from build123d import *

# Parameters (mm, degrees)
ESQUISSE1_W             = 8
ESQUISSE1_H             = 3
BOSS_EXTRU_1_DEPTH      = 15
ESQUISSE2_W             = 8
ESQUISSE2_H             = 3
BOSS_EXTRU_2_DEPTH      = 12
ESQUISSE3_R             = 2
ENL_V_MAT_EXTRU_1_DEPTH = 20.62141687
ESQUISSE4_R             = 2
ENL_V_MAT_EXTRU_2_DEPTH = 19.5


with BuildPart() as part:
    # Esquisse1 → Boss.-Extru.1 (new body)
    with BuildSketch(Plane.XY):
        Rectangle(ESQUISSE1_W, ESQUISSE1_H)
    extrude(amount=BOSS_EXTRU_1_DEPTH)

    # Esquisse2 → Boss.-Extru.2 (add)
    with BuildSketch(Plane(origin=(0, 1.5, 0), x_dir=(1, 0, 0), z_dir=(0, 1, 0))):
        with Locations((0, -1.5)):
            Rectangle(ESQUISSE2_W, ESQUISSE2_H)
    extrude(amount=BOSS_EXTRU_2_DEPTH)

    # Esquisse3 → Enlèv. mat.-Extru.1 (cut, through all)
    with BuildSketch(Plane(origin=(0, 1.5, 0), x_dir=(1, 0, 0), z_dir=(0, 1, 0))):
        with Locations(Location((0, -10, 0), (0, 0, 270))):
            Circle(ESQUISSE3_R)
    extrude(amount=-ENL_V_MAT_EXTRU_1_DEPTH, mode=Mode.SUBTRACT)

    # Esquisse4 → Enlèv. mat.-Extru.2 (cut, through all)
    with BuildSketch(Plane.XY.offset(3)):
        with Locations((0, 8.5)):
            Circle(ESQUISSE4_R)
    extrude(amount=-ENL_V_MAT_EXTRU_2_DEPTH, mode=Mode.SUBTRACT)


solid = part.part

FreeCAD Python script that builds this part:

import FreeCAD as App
import Part
import Sketcher
from FreeCAD import Vector
Q = App.Units.Quantity

doc = App.newDocument("Part")
body = doc.addObject("PartDesign::Body", "Body")

# Sketch on XY plane
sketch1 = body.newObject("Sketcher::SketchObject", "Sketch")
sketch1.AttachmentSupport = (doc.getObject("XY_Plane"), [""])
sketch1.MapMode = "FlatFace"
sketch1.addGeometry(Part.LineSegment(Vector(-4, 1.5, 0), Vector(-4, -1.5, 0)), False)
sketch1.addGeometry(Part.LineSegment(Vector(-4, -1.5, 0), Vector(4, -1.5, 0)), False)
sketch1.addGeometry(Part.LineSegment(Vector(4, -1.5, 0), Vector(4, 1.5, 0)), False)
sketch1.addGeometry(Part.LineSegment(Vector(4, 1.5, 0), Vector(-4, 1.5, 0)), False)
sketch1.addConstraint(Sketcher.Constraint("Coincident", 0, 2, 1, 1))
sketch1.addConstraint(Sketcher.Constraint("Coincident", 1, 2, 2, 1))
sketch1.addConstraint(Sketcher.Constraint("Coincident", 2, 2, 3, 1))
sketch1.addConstraint(Sketcher.Constraint("Coincident", 3, 2, 0, 1))
sketch1.addConstraint(Sketcher.Constraint("Vertical", 0))
sketch1.addConstraint(Sketcher.Constraint("Horizontal", 1))
sketch1.addConstraint(Sketcher.Constraint("Vertical", 2))
sketch1.addConstraint(Sketcher.Constraint("Horizontal", 3))
sketch1.addConstraint(Sketcher.Constraint("Symmetric", 0, 2, 2, 2, -1, 1))
sketch1.addConstraint(Sketcher.Constraint("DistanceX", 1, 1, 1, 2, Q("8 mm")))
sketch1.addConstraint(Sketcher.Constraint("DistanceY", 0, 2, 0, 1, Q("3 mm")))
pad1 = body.newObject("PartDesign::Pad", "Pad")
pad1.Profile = sketch1
pad1.Length = 15

# Sketch on XZ plane
sketch2 = body.newObject("Sketcher::SketchObject", "Sketch001")
sketch2.AttachmentSupport = (doc.getObject("XZ_Plane"), [""])
sketch2.MapMode = "FlatFace"
sketch2.AttachmentOffset = App.Placement(Vector(0, 0, -1.5), App.Rotation())
sketch2.addGeometry(Part.LineSegment(Vector(-4, 0, 0), Vector(-4, 3, 0)), False)
sketch2.addGeometry(Part.LineSegment(Vector(-4, 3, 0), Vector(4, 3, 0)), False)
sketch2.addGeometry(Part.LineSegment(Vector(4, 3, 0), Vector(4, 0, 0)), False)
sketch2.addGeometry(Part.LineSegment(Vector(4, 0, 0), Vector(-4, 0, 0)), False)
sketch2.addConstraint(Sketcher.Constraint("Coincident", 0, 2, 1, 1))
sketch2.addConstraint(Sketcher.Constraint("Coincident", 1, 2, 2, 1))
sketch2.addConstraint(Sketcher.Constraint("Coincident", 2, 2, 3, 1))
sketch2.addConstraint(Sketcher.Constraint("Coincident", 3, 2, 0, 1))
sketch2.addConstraint(Sketcher.Constraint("Vertical", 0))
sketch2.addConstraint(Sketcher.Constraint("Horizontal", 1))
sketch2.addConstraint(Sketcher.Constraint("Vertical", 2))
sketch2.addConstraint(Sketcher.Constraint("Horizontal", 3))
sketch2.addConstraint(Sketcher.Constraint("Symmetric", 2, 2, 3, 2, -1, 1))
sketch2.addConstraint(Sketcher.Constraint("DistanceX", 1, 1, 1, 2, Q("8 mm")))
sketch2.addConstraint(Sketcher.Constraint("DistanceY", 0, 1, 0, 2, Q("3 mm")))
pad2 = body.newObject("PartDesign::Pad", "Pad001")
pad2.Profile = sketch2
pad2.Length = 12
pad2.Reversed = True

# Sketch on XZ plane
sketch3 = body.newObject("Sketcher::SketchObject", "Sketch002")
sketch3.AttachmentSupport = (doc.getObject("XZ_Plane"), [""])
sketch3.MapMode = "FlatFace"
sketch3.AttachmentOffset = App.Placement(Vector(0, 0, -1.5), App.Rotation())
sketch3.addGeometry(Part.Circle(Vector(0, 10, 0), Vector(0, 0, 1), 2), False)
sketch3.addConstraint(Sketcher.Constraint("PointOnObject", 0, 3, -2))
sketch3.addConstraint(Sketcher.Constraint("Diameter", 0, Q("4 mm")))
sketch3.addConstraint(Sketcher.Constraint("DistanceY", -1, 1, 0, 3, Q("10 mm")))
pocket1 = body.newObject("PartDesign::Pocket", "Pocket")
pocket1.Profile = sketch3
pocket1.Type = "ThroughAll"
pocket1.Reversed = True

# Sketch on XY plane
sketch4 = body.newObject("Sketcher::SketchObject", "Sketch003")
sketch4.AttachmentSupport = (doc.getObject("XY_Plane"), [""])
sketch4.MapMode = "FlatFace"
sketch4.AttachmentOffset = App.Placement(Vector(0, 0, 3), App.Rotation())
sketch4.addGeometry(Part.Circle(Vector(0, 8.5, 0), Vector(0, 0, 1), 2), False)
sketch4.addConstraint(Sketcher.Constraint("PointOnObject", 0, 3, -2))
sketch4.addConstraint(Sketcher.Constraint("Diameter", 0, Q("4 mm")))
sketch4.addConstraint(Sketcher.Constraint("DistanceY", -1, 1, 0, 3, Q("8.5 mm")))
pocket2 = body.newObject("PartDesign::Pocket", "Pocket001")
pocket2.Profile = sketch4
pocket2.Type = "ThroughAll"

doc.recompute()
